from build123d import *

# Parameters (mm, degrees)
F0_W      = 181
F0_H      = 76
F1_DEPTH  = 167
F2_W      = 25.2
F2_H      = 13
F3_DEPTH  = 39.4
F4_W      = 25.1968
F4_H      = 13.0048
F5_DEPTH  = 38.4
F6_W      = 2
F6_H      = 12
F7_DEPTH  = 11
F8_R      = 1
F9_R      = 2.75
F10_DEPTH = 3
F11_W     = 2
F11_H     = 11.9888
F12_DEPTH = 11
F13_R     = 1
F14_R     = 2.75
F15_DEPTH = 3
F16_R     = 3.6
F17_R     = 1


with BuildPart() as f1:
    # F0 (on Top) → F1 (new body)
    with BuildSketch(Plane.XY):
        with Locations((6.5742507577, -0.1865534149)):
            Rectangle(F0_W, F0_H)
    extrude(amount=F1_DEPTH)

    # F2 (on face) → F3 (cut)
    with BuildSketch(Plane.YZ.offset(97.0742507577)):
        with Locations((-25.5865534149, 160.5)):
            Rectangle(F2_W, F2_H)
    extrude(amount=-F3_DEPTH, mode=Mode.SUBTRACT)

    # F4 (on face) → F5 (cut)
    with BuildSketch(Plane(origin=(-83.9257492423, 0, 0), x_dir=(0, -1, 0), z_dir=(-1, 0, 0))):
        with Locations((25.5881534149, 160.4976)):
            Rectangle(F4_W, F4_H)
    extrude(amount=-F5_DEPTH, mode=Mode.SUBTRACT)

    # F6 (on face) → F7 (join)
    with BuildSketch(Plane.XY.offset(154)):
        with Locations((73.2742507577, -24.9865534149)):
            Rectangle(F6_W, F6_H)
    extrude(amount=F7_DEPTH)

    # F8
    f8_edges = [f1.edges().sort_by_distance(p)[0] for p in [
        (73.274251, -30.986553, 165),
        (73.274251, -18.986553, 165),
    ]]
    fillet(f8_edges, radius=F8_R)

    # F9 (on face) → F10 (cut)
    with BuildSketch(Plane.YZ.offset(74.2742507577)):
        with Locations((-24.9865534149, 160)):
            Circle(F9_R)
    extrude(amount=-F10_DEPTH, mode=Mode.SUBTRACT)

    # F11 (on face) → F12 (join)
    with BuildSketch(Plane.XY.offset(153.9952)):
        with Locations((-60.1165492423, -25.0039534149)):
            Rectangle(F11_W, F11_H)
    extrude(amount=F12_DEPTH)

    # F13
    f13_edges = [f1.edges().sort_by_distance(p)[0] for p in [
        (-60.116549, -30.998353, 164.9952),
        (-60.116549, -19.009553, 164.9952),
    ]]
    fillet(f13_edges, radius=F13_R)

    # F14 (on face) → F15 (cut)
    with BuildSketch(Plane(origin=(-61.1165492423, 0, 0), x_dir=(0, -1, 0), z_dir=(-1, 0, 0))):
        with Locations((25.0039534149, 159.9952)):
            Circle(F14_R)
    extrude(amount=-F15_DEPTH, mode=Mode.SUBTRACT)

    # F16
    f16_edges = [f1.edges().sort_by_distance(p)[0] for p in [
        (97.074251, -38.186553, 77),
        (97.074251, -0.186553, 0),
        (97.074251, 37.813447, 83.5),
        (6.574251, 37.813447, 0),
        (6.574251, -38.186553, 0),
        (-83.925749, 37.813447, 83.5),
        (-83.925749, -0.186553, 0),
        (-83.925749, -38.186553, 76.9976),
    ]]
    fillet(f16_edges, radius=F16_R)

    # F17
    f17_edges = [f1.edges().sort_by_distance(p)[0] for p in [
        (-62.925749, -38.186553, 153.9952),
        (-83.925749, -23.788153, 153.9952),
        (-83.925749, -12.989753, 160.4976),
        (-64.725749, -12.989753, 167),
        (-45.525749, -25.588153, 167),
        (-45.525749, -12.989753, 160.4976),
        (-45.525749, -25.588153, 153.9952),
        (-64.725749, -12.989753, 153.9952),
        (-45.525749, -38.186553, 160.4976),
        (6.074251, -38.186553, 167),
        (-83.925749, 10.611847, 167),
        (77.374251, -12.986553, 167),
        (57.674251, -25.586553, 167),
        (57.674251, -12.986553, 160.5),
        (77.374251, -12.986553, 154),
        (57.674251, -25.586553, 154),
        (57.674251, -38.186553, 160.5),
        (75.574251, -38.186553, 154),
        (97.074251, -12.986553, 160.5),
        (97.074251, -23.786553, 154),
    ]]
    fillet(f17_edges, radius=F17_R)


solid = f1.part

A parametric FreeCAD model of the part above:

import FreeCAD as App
import Part
import Sketcher

V = App.Vector


def edges_at(feature, points):
    """Names of the edges that pass closest to the given points."""
    edges = feature.Shape.Edges
    near = lambda p: min(range(len(edges)), key=lambda i: edges[i].distToShape(Part.Vertex(*p))[0])
    return sorted({f"Edge{near(p) + 1}" for p in points})


def add_polygon(sketch, points):
    """Adds a closed chain of lines whose ends are joined by coincident constraints."""
    first, n = sketch.GeometryCount, len(points)
    for a, b in zip(points, points[1:] + points[:1]):
        sketch.addGeometry(Part.LineSegment(App.Vector(*a, 0), App.Vector(*b, 0)), False)
    for i in range(n):
        sketch.addConstraint(Sketcher.Constraint("Coincident", first + i, 2, first + (i + 1) % n, 1))

doc = App.newDocument("Part")
body = doc.addObject("PartDesign::Body", "Body")

sketch1 = doc.addObject("Sketcher::SketchObject", "Sketch")
body.addObject(sketch1)
sketch1.AttachmentSupport = (doc.XY_Plane, [""])
sketch1.MapMode = "FlatFace"
add_polygon(sketch1, [(-84, 38), (-84, -38), (97, -38), (97, 38)])
sketch1.addConstraint([
    Sketcher.Constraint("Vertical", 0),
    Sketcher.Constraint("Horizontal", 1),
    Sketcher.Constraint("Vertical", 2),
    Sketcher.Constraint("Horizontal", 3),
    Sketcher.Constraint("DistanceX", 1, 1, 1, 2, 181.0),
    Sketcher.Constraint("DistanceY", 0, 2, 0, 1, 76.0),
    Sketcher.Constraint("DistanceX", 0, 2, -1, 1, 83.925749),
    Sketcher.Constraint("DistanceY", 0, 2, -1, 1, 38.186553),
])
pad1 = doc.addObject("PartDesign::Pad", "Pad")
body.addObject(pad1)
pad1.Profile = sketch1
pad1.Length = 167

sketch2 = doc.addObject("Sketcher::SketchObject", "Sketch001")
body.addObject(sketch2)
sketch2.AttachmentSupport = (doc.YZ_Plane, [""])
sketch2.MapMode = "FlatFace"
sketch2.AttachmentOffset = App.Placement(V(0, 0, 97.074251), App.Rotation())
add_polygon(sketch2, [(-38, 167), (-38, 154), (-13, 154), (-13, 167)])
sketch2.addConstraint([
    Sketcher.Constraint("Vertical", 0),
    Sketcher.Constraint("Horizontal", 1),
    Sketcher.Constraint("Vertical", 2),
    Sketcher.Constraint("Horizontal", 3),
    Sketcher.Constraint("DistanceY", 0, 2, 0, 1, 13.0),
    Sketcher.Constraint("DistanceX", 1, 1, 1, 2, 25.2),
    Sketcher.Constraint("DistanceY", -1, 1, 0, 2, 154.0),
    Sketcher.Constraint("DistanceX", 0, 2, -1, 1, 38.186553),
])
pocket1 = doc.addObject("PartDesign::Pocket", "Pocket")
body.addObject(pocket1)
pocket1.Profile = sketch2
pocket1.Length = 39.4

sketch3 = doc.addObject("Sketcher::SketchObject", "Sketch002")
body.addObject(sketch3)
sketch3.AttachmentSupport = (doc.YZ_Plane, [""])
sketch3.MapMode = "FlatFace"
sketch3.AttachmentOffset = App.Placement(V(0, 0, -83.925749), App.Rotation())
add_polygon(sketch3, [(-13, 167), (-13, 154), (-38, 154), (-38, 167)])
sketch3.addConstraint([
    Sketcher.Constraint("Vertical", 0),
    Sketcher.Constraint("Horizontal", 1),
    Sketcher.Constraint("Vertical", 2),
    Sketcher.Constraint("Horizontal", 3),
    Sketcher.Constraint("DistanceY", -1, 1, 2, 2, 167.0),
    Sketcher.Constraint("DistanceX", 1, 2, 1, 1, 25.1968),
    Sketcher.Constraint("DistanceY", 0, 2, 0, 1, 13.0048),
    Sketcher.Constraint("DistanceX", 0, 2, -1, 1, 12.989753),
])
pocket2 = doc.addObject("PartDesign::Pocket", "Pocket001")
body.addObject(pocket2)
pocket2.Profile = sketch3
pocket2.Length = 38.4
pocket2.Reversed = True

sketch4 = doc.addObject("Sketcher::SketchObject", "Sketch003")
body.addObject(sketch4)
sketch4.AttachmentSupport = (doc.XY_Plane, [""])
sketch4.MapMode = "FlatFace"
sketch4.AttachmentOffset = App.Placement(V(0, 0, 154), App.Rotation())
add_polygon(sketch4, [(72.3, -19), (72.3, -31), (74.3, -31), (74.3, -19)])
sketch4.addConstraint([
    Sketcher.Constraint("Vertical", 0),
    Sketcher.Constraint("Horizontal", 1),
    Sketcher.Constraint("Vertical", 2),
    Sketcher.Constraint("Horizontal", 3),
    Sketcher.Constraint("DistanceX", 1, 1, 1, 2, 2.0),
    Sketcher.Constraint("DistanceY", 0, 2, 0, 1, 12.0),
    Sketcher.Constraint("DistanceX", -1, 1, 0, 2, 72.274251),
    Sketcher.Constraint("DistanceY", 0, 2, -1, 1, 30.986553),
])
pad2 = doc.addObject("PartDesign::Pad", "Pad001")
body.addObject(pad2)
pad2.Profile = sketch4
pad2.Length = 11
doc.recompute()

fillet = doc.addObject("PartDesign::Fillet", "Fillet")
body.addObject(fillet)
fillet.Base = (pad2, edges_at(pad2, [(73.274, -30.987, 165), (73.274, -18.987, 165)]))
fillet.Radius = 1

sketch5 = doc.addObject("Sketcher::SketchObject", "Sketch004")
body.addObject(sketch5)
sketch5.AttachmentSupport = (doc.YZ_Plane, [""])
sketch5.MapMode = "FlatFace"
sketch5.AttachmentOffset = App.Placement(V(0, 0, 74.274251), App.Rotation())
sketch5.addGeometry(Part.Circle(V(-25, 160, 0), V(0, 0, 1), 2.8), False)
sketch5.addConstraint([
    Sketcher.Constraint("Diameter", 0, 5.5),
    Sketcher.Constraint("DistanceY", -1, 1, 0, 3, 160.0),
    Sketcher.Constraint("DistanceX", 0, 3, -1, 1, 24.986553),
])
pocket3 = doc.addObject("PartDesign::Pocket", "Pocket002")
body.addObject(pocket3)
pocket3.Profile = sketch5
pocket3.Length = 3

sketch6 = doc.addObject("Sketcher::SketchObject", "Sketch005")
body.addObject(sketch6)
sketch6.AttachmentSupport = (doc.XY_Plane, [""])
sketch6.MapMode = "FlatFace"
sketch6.AttachmentOffset = App.Placement(V(0, 0, 153.9952), App.Rotation())
add_polygon(sketch6, [(-61.1, -19), (-61.1, -31), (-59.1, -31), (-59.1, -19)])
sketch6.addConstraint([
    Sketcher.Constraint("Vertical", 0),
    Sketcher.Constraint("Horizontal", 1),
    Sketcher.Constraint("Vertical", 2),
    Sketcher.Constraint("Horizontal", 3),
    Sketcher.Constraint("DistanceX", 1, 1, 1, 2, 2.0),
    Sketcher.Constraint("DistanceY", 0, 2, 0, 1, 11.9888),
    Sketcher.Constraint("DistanceX", 0, 2, -1, 1, 61.116549),
    Sketcher.Constraint("DistanceY", 0, 2, -1, 1, 30.998353),
])
pad3 = doc.addObject("PartDesign::Pad", "Pad002")
body.addObject(pad3)
pad3.Profile = sketch6
pad3.Length = 11
doc.recompute()

fillet2 = doc.addObject("PartDesign::Fillet", "Fillet001")
body.addObject(fillet2)
fillet2.Base = (pad3, edges_at(pad3, [(-60.117, -30.998, 164.995), (-60.117, -19.01, 164.995)]))
fillet2.Radius = 1

sketch7 = doc.addObject("Sketcher::SketchObject", "Sketch006")
body.addObject(sketch7)
sketch7.AttachmentSupport = (doc.YZ_Plane, [""])
sketch7.MapMode = "FlatFace"
sketch7.AttachmentOffset = App.Placement(V(0, 0, -61.116549), App.Rotation())
sketch7.addGeometry(Part.Circle(V(-25, 160, 0), V(0, 0, 1), 2.8), False)
sketch7.addConstraint([
    Sketcher.Constraint("Diameter", 0, 5.5),
    Sketcher.Constraint("DistanceY", -1, 1, 0, 3, 159.9952),
    Sketcher.Constraint("DistanceX", 0, 3, -1, 1, 25.003953),
])
pocket4 = doc.addObject("PartDesign::Pocket", "Pocket003")
body.addObject(pocket4)
pocket4.Profile = sketch7
pocket4.Length = 3
pocket4.Reversed = True
doc.recompute()

fillet3 = doc.addObject("PartDesign::Fillet", "Fillet002")
body.addObject(fillet3)
fillet3.Base = (pocket4, edges_at(pocket4, [
    (97.074, -38.187, 77),
    (97.074, -0.187, 0),
    (97.074, 37.813, 83.5),
    (6.574, 37.813, 0),
    (6.574, -38.187, 0),
    (-83.926, 37.813, 83.5),
    (-83.926, -0.187, 0),
    (-83.926, -38.187, 76.998),
]))
fillet3.Radius = 3.6
doc.recompute()

fillet4 = doc.addObject("PartDesign::Fillet", "Fillet003")
body.addObject(fillet4)
fillet4.Base = (fillet3, edges_at(fillet3, [
    (-62.926, -38.187, 153.995),
    (-83.926, -23.788, 153.995),
    (-83.926, -12.99, 160.498),
    (-64.726, -12.99, 167),
    (-45.526, -25.588, 167),
    (-45.526, -12.99, 160.498),
    (-45.526, -25.588, 153.995),
    (-64.726, -12.99, 153.995),
    (-45.526, -38.187, 160.498),
    (6.074, -38.187, 167),
    (-83.926, 10.612, 167),
    (77.374, -12.987, 167),
    (57.674, -25.587, 167),
    (57.674, -12.987, 160.5),
    (77.374, -12.987, 154),
    (57.674, -25.587, 154),
    (57.674, -38.187, 160.5),
    (75.574, -38.187, 154),
    (97.074, -12.987, 160.5),
    (97.074, -23.787, 154),
]))
fillet4.Radius = 1

doc.recompute()
